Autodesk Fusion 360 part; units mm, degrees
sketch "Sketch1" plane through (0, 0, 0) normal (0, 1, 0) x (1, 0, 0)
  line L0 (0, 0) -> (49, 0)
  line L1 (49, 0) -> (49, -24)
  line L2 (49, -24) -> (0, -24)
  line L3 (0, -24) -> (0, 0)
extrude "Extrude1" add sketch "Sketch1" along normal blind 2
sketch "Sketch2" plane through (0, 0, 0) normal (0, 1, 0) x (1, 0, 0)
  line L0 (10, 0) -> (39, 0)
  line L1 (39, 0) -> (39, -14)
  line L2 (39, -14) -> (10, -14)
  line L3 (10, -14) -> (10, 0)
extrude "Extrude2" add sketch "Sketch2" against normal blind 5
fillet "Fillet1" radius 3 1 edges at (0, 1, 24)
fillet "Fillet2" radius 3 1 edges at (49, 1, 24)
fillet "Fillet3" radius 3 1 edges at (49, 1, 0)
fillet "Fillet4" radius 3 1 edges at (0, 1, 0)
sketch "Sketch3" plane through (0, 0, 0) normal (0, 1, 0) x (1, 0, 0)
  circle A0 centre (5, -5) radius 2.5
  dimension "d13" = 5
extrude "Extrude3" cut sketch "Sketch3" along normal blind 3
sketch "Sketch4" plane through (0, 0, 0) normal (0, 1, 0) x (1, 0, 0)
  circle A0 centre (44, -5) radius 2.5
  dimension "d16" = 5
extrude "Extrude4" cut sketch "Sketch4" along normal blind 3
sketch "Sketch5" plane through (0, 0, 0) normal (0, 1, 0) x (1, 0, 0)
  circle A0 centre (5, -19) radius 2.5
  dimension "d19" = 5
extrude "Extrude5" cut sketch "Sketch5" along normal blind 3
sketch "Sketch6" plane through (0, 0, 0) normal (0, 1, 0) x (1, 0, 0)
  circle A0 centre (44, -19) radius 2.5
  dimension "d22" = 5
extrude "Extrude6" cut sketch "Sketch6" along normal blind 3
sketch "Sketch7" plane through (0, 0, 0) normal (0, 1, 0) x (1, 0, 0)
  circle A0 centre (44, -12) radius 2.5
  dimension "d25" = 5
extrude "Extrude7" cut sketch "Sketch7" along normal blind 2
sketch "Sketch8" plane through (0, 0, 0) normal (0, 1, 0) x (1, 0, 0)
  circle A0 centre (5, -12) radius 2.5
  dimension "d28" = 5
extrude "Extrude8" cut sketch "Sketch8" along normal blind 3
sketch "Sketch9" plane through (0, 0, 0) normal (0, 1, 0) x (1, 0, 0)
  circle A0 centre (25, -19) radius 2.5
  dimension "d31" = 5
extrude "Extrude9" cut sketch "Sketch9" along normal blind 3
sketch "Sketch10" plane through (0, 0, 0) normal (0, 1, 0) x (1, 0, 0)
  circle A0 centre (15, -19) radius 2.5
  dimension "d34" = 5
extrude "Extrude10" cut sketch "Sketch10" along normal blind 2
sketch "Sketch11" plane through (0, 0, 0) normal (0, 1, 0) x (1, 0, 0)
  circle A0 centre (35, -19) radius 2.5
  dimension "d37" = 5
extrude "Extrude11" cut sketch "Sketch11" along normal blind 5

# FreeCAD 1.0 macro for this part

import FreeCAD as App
import Part
import Sketcher


def edges_at(feature, points):
    """Names of the edges that pass closest to the given points."""
    edges = feature.Shape.Edges
    near = lambda p: min(range(len(edges)), key=lambda i: edges[i].distToShape(Part.Vertex(*p))[0])
    return sorted({f"Edge{near(p) + 1}" for p in points})


def add_polygon(sketch, points):
    """Adds a closed chain of lines whose ends are joined by coincident constraints."""
    first, n = sketch.GeometryCount, len(points)
    for a, b in zip(points, points[1:] + points[:1]):
        sketch.addGeometry(Part.LineSegment(App.Vector(*a, 0), App.Vector(*b, 0)), False)
    for i in range(n):
        sketch.addConstraint(Sketcher.Constraint("Coincident", first + i, 2, first + (i + 1) % n, 1))

doc = App.newDocument("Part")
body = doc.addObject("PartDesign::Body", "Body")

# Sketch on XZ plane
sketch1 = body.newObject("Sketcher::SketchObject", "Sketch")
sketch1.AttachmentSupport = (doc.getObject("XZ_Plane"), [""])
sketch1.MapMode = "FlatFace"
add_polygon(sketch1, [(49, 0), (0, 0), (0, 24), (49, 24)])  # lines 0-3
sketch1.addConstraint(Sketcher.Constraint("Horizontal", 0))
sketch1.addConstraint(Sketcher.Constraint("Vertical", 1))
sketch1.addConstraint(Sketcher.Constraint("Horizontal", 2))
sketch1.addConstraint(Sketcher.Constraint("Vertical", 3))
sketch1.addConstraint(Sketcher.Constraint("Coincident", 0, 2, -1, 1))
sketch1.addConstraint(Sketcher.Constraint("DistanceX", 0, 2, 0, 1, 49.0))
sketch1.addConstraint(Sketcher.Constraint("DistanceY", 1, 1, 1, 2, 24.0))
pad1 = body.newObject("PartDesign::Pad", "Pad")
pad1.Profile = sketch1
pad1.Length = 2
pad1.Reversed = True

# Sketch on XZ plane
sketch2 = body.newObject("Sketcher::SketchObject", "Sketch001")
sketch2.AttachmentSupport = (doc.getObject("XZ_Plane"), [""])
sketch2.MapMode = "FlatFace"
add_polygon(sketch2, [(39, 0), (10, 0), (10, 14), (39, 14)])  # lines 0-3
sketch2.addConstraint(Sketcher.Constraint("Horizontal", 0))
sketch2.addConstraint(Sketcher.Constraint("Vertical", 1))
sketch2.addConstraint(Sketcher.Constraint("Horizontal", 2))
sketch2.addConstraint(Sketcher.Constraint("Vertical", 3))
sketch2.addConstraint(Sketcher.Constraint("PointOnObject", 0, 2, -1))
sketch2.addConstraint(Sketcher.Constraint("DistanceX", 0, 2, 0, 1, 29.0))
sketch2.addConstraint(Sketcher.Constraint("DistanceY", 1, 1, 1, 2, 14.0))
sketch2.addConstraint(Sketcher.Constraint("DistanceX", -1, 1, 0, 2, 10.0))
pad2 = body.newObject("PartDesign::Pad", "Pad001")
pad2.Profile = sketch2
pad2.Length = 5
doc.recompute()

fillet = body.newObject("PartDesign::Fillet", "Fillet")
fillet.Base = (pad2, edges_at(pad2, [(0, 1, 24)]))
fillet.Radius = 3
doc.recompute()

fillet2 = body.newObject("PartDesign::Fillet", "Fillet001")
fillet2.Base = (fillet, edges_at(fillet, [(49, 1, 24)]))
fillet2.Radius = 3
doc.recompute()

fillet3 = body.newObject("PartDesign::Fillet", "Fillet002")
fillet3.Base = (fillet2, edges_at(fillet2, [(49, 1, 0)]))
fillet3.Radius = 3
doc.recompute()

fillet4 = body.newObject("PartDesign::Fillet", "Fillet003")
fillet4.Base = (fillet3, edges_at(fillet3, [(0, 1, 0)]))
fillet4.Radius = 3

# Sketch on XZ plane
sketch3 = body.newObject("Sketcher::SketchObject", "Sketch002")
sketch3.AttachmentSupport = (doc.getObject("XZ_Plane"), [""])
sketch3.MapMode = "FlatFace"
sketch3.addGeometry(Part.Circle(App.Vector(5, 5, 0), App.Vector(0, 0, 1), 2.5), False)
sketch3.addConstraint(Sketcher.Constraint("Diameter", 0, 5.0))
sketch3.addConstraint(Sketcher.Constraint("DistanceX", -1, 1, 0, 3, 5.0))
sketch3.addConstraint(Sketcher.Constraint("DistanceY", -1, 1, 0, 3, 5.0))
pocket1 = body.newObject("PartDesign::Pocket", "Pocket")
pocket1.Profile = sketch3
pocket1.Length = 3

# Sketch on XZ plane
sketch4 = body.newObject("Sketcher::SketchObject", "Sketch003")
sketch4.AttachmentSupport = (doc.getObject("XZ_Plane"), [""])
sketch4.MapMode = "FlatFace"
sketch4.addGeometry(Part.Circle(App.Vector(44, 5, 0), App.Vector(0, 0, 1), 2.5), False)
sketch4.addConstraint(Sketcher.Constraint("Diameter", 0, 5.0))
sketch4.addConstraint(Sketcher.Constraint("DistanceY", -1, 1, 0, 3, 5.0))
sketch4.addConstraint(Sketcher.Constraint("DistanceX", -1, 1, 0, 3, 44.0))
pocket2 = body.newObject("PartDesign::Pocket", "Pocket001")
pocket2.Profile = sketch4
pocket2.Length = 3

# Sketch on XZ plane
sketch5 = body.newObject("Sketcher::SketchObject", "Sketch004")
sketch5.AttachmentSupport = (doc.getObject("XZ_Plane"), [""])
sketch5.MapMode = "FlatFace"
sketch5.addGeometry(Part.Circle(App.Vector(5, 19, 0), App.Vector(0, 0, 1), 2.5), False)
sketch5.addConstraint(Sketcher.Constraint("Diameter", 0, 5.0))
sketch5.addConstraint(Sketcher.Constraint("DistanceX", -1, 1, 0, 3, 5.0))
sketch5.addConstraint(Sketcher.Constraint("DistanceY", -1, 1, 0, 3, 19.0))
pocket3 = body.newObject("PartDesign::Pocket", "Pocket002")
pocket3.Profile = sketch5
pocket3.Length = 3

# Sketch on XZ plane
sketch6 = body.newObject("Sketcher::SketchObject", "Sketch005")
sketch6.AttachmentSupport = (doc.getObject("XZ_Plane"), [""])
sketch6.MapMode = "FlatFace"
sketch6.addGeometry(Part.Circle(App.Vector(44, 19, 0), App.Vector(0, 0, 1), 2.5), False)
sketch6.addConstraint(Sketcher.Constraint("Diameter", 0, 5.0))
sketch6.addConstraint(Sketcher.Constraint("DistanceX", -1, 1, 0, 3, 44.0))
sketch6.addConstraint(Sketcher.Constraint("DistanceY", -1, 1, 0, 3, 19.0))
pocket4 = body.newObject("PartDesign::Pocket", "Pocket003")
pocket4.Profile = sketch6
pocket4.Length = 3

# Sketch on XZ plane
sketch7 = body.newObject("Sketcher::SketchObject", "Sketch006")
sketch7.AttachmentSupport = (doc.getObject("XZ_Plane"), [""])
sketch7.MapMode = "FlatFace"
sketch7.addGeometry(Part.Circle(App.Vector(44, 12, 0), App.Vector(0, 0, 1), 2.5), False)
sketch7.addConstraint(Sketcher.Constraint("Diameter", 0, 5.0))
sketch7.addConstraint(Sketcher.Constraint("DistanceX", -1, 1, 0, 3, 44.0))
sketch7.addConstraint(Sketcher.Constraint("DistanceY", -1, 1, 0, 3, 12.0))
pocket5 = body.newObject("PartDesign::Pocket", "Pocket004")
pocket5.Profile = sketch7
pocket5.Length = 2

# Sketch on XZ plane
sketch8 = body.newObject("Sketcher::SketchObject", "Sketch007")
sketch8.AttachmentSupport = (doc.getObject("XZ_Plane"), [""])
sketch8.MapMode = "FlatFace"
sketch8.addGeometry(Part.Circle(App.Vector(5, 12, 0), App.Vector(0, 0, 1), 2.5), False)
sketch8.addConstraint(Sketcher.Constraint("Diameter", 0, 5.0))
sketch8.addConstraint(Sketcher.Constraint("DistanceX", -1, 1, 0, 3, 5.0))
sketch8.addConstraint(Sketcher.Constraint("DistanceY", -1, 1, 0, 3, 12.0))
pocket6 = body.newObject("PartDesign::Pocket", "Pocket005")
pocket6.Profile = sketch8
pocket6.Length = 3

# Sketch on XZ plane
sketch9 = body.newObject("Sketcher::SketchObject", "Sketch008")
sketch9.AttachmentSupport = (doc.getObject("XZ_Plane"), [""])
sketch9.MapMode = "FlatFace"
sketch9.addGeometry(Part.Circle(App.Vector(25, 19, 0), App.Vector(0, 0, 1), 2.5), False)
sketch9.addConstraint(Sketcher.Constraint("Diameter", 0, 5.0))
sketch9.addConstraint(Sketcher.Constraint("DistanceX", -1, 1, 0, 3, 25.0))
sketch9.addConstraint(Sketcher.Constraint("DistanceY", -1, 1, 0, 3, 19.0))
pocket7 = body.newObject("PartDesign::Pocket", "Pocket006")
pocket7.Profile = sketch9
pocket7.Length = 3

# Sketch on XZ plane
sketch10 = body.newObject("Sketcher::SketchObject", "Sketch009")
sketch10.AttachmentSupport = (doc.getObject("XZ_Plane"), [""])
sketch10.MapMode = "FlatFace"
sketch10.addGeometry(Part.Circle(App.Vector(15, 19, 0), App.Vector(0, 0, 1), 2.5), False)
sketch10.addConstraint(Sketcher.Constraint("Diameter", 0, 5.0))
sketch10.addConstraint(Sketcher.Constraint("DistanceX", -1, 1, 0, 3, 15.0))
sketch10.addConstraint(Sketcher.Constraint("DistanceY", -1, 1, 0, 3, 19.0))
pocket8 = body.newObject("PartDesign::Pocket", "Pocket007")
pocket8.Profile = sketch10
pocket8.Length = 2

# Sketch on XZ plane
sketch11 = body.newObject("Sketcher::SketchObject", "Sketch010")
sketch11.AttachmentSupport = (doc.getObject("XZ_Plane"), [""])
sketch11.MapMode = "FlatFace"
sketch11.addGeometry(Part.Circle(App.Vector(35, 19, 0), App.Vector(0, 0, 1), 2.5), False)
sketch11.addConstraint(Sketcher.Constraint("Diameter", 0, 5.0))
sketch11.addConstraint(Sketcher.Constraint("DistanceX", -1, 1, 0, 3, 35.0))
sketch11.addConstraint(Sketcher.Constraint("DistanceY", -1, 1, 0, 3, 19.0))
pocket9 = body.newObject("PartDesign::Pocket", "Pocket008")
pocket9.Profile = sketch11
pocket9.Length = 5

doc.recompute()
